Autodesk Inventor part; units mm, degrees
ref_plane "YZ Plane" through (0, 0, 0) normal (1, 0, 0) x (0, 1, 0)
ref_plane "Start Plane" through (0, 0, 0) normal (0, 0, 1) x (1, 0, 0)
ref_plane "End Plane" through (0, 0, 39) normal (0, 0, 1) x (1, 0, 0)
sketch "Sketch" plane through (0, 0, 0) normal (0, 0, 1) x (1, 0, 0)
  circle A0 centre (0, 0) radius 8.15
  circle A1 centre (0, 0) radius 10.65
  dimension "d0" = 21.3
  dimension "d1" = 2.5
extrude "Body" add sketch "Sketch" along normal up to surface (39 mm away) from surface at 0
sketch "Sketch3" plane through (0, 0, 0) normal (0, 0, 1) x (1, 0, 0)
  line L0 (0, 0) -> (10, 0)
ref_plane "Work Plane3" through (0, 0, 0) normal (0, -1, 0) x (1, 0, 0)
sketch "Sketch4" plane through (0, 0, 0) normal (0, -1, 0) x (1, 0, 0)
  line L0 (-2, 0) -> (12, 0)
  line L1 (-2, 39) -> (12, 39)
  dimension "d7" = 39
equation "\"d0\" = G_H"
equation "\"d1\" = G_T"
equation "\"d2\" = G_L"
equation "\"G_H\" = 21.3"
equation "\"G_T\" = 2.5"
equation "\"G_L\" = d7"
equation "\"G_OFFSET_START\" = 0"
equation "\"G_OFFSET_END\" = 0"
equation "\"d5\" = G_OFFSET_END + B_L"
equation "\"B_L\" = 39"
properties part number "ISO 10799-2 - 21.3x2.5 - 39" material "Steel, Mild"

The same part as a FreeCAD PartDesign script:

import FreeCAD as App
import Part
import Sketcher

V = App.Vector

doc = App.newDocument("Part")
body = doc.addObject("PartDesign::Body", "Body")

# Sketch on XY plane
sketch1 = doc.addObject("Sketcher::SketchObject", "Sketch")
body.addObject(sketch1)
sketch1.AttachmentSupport = (doc.XY_Plane, [""])
sketch1.MapMode = "FlatFace"
sketch1.addGeometry([
    Part.Circle(V(0, 0, 0), V(0, 0, 1), 11),
    Part.Circle(V(0, 0, 0), V(0, 0, 1), 8),
], False)
sketch1.addConstraint([
    Sketcher.Constraint("Coincident", 0, 3, -1, 1),
    Sketcher.Constraint("Coincident", 1, 3, -1, 1),
    Sketcher.Constraint("Diameter", 0, 21.3),
    Sketcher.Constraint("Diameter", 1, 16.3),
])
pad1 = doc.addObject("PartDesign::Pad", "Pad")
body.addObject(pad1)
pad1.Profile = sketch1
pad1.Length = 39

doc.recompute()
